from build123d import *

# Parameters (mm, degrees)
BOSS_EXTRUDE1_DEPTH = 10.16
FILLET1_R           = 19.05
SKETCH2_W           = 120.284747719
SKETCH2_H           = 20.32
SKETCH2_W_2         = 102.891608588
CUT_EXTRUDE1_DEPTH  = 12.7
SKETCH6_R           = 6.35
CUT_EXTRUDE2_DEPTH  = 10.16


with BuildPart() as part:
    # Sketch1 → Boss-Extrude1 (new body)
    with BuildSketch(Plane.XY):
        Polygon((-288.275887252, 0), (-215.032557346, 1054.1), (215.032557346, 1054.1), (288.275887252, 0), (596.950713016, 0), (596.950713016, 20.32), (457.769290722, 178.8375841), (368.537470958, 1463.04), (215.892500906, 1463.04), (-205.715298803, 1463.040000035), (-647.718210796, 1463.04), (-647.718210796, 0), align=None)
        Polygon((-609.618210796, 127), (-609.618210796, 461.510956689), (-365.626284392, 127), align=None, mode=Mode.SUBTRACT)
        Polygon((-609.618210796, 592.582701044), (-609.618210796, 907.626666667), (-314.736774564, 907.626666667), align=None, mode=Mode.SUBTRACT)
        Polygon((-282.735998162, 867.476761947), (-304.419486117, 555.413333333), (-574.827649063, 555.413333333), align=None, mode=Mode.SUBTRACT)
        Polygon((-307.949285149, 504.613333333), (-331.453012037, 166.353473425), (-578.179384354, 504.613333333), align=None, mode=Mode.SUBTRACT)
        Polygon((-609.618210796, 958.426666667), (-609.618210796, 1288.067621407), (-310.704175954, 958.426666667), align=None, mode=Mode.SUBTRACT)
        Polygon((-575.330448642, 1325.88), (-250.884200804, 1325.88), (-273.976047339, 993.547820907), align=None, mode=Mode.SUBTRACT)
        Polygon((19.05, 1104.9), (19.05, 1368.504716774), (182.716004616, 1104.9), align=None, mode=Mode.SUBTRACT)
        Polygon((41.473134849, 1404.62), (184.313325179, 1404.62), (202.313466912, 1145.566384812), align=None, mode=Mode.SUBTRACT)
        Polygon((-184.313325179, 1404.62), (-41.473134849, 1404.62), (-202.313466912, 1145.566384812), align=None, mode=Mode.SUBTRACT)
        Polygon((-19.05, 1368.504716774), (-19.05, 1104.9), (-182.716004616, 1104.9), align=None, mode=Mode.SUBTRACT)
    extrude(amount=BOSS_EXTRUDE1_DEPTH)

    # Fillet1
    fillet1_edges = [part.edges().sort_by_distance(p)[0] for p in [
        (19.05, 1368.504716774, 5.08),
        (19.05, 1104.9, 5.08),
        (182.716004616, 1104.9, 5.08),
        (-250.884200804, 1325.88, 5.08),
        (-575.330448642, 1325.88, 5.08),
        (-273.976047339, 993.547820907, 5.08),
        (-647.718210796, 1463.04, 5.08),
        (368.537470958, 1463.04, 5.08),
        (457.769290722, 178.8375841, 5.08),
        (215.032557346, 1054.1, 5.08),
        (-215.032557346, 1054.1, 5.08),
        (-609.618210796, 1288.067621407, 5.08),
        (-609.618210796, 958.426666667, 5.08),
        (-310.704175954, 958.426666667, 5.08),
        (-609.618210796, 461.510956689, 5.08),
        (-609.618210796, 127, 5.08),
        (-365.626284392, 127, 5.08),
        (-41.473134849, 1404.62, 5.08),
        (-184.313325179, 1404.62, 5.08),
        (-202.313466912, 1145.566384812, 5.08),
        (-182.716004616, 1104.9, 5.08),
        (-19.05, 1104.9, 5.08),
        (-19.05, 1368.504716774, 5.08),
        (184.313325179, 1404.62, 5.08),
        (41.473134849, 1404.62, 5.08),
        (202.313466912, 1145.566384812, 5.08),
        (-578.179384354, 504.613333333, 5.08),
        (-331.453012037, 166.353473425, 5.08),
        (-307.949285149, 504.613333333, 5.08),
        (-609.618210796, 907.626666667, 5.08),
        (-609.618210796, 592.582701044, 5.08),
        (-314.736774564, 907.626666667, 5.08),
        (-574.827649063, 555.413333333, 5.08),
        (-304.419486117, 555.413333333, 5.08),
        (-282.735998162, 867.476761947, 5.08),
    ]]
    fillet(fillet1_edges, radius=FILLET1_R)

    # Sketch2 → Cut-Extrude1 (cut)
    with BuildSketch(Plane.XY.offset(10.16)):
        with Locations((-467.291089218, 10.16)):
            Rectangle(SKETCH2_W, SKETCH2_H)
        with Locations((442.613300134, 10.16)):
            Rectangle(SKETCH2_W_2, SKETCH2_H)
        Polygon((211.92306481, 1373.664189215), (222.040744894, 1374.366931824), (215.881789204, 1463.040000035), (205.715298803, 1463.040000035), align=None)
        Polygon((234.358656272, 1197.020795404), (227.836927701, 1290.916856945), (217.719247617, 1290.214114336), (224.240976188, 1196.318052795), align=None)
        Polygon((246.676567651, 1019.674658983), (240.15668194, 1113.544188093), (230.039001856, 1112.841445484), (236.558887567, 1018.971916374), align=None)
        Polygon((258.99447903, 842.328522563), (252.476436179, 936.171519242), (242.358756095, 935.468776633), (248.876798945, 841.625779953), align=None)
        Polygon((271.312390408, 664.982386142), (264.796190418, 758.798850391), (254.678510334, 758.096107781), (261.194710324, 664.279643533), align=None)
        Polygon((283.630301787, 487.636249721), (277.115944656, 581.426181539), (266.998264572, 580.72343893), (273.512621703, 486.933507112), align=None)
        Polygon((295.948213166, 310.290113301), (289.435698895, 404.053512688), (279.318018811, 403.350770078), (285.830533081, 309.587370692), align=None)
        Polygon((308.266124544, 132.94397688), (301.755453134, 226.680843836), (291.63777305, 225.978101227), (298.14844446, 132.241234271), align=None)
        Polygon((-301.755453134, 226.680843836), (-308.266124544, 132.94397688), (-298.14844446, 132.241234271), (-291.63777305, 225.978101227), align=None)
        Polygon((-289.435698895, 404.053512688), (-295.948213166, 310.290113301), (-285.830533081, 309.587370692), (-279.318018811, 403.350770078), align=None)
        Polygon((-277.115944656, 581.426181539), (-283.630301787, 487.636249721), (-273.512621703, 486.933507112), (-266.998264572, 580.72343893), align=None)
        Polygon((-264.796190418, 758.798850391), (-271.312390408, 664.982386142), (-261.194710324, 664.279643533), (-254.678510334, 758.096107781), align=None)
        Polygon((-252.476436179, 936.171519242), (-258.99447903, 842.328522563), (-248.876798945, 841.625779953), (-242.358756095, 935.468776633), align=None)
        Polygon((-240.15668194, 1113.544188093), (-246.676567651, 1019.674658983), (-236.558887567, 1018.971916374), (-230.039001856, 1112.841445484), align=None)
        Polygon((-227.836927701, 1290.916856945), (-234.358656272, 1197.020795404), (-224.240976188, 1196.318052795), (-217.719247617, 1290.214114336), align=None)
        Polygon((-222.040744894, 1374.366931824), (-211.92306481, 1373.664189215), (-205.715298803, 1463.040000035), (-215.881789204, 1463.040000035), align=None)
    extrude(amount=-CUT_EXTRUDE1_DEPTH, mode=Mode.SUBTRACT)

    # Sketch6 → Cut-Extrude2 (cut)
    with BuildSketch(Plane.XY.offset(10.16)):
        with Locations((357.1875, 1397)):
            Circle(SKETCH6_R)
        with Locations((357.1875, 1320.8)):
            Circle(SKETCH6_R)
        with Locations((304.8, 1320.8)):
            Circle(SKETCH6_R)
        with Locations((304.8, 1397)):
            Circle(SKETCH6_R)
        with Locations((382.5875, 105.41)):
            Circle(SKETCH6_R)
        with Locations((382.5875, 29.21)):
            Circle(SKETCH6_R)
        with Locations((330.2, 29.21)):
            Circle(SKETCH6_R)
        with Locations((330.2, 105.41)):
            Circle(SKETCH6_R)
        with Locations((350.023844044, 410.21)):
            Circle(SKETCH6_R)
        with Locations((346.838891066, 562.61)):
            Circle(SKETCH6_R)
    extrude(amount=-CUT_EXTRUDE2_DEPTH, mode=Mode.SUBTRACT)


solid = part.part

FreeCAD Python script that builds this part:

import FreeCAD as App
import Part
import Sketcher
from FreeCAD import Vector
Q = App.Units.Quantity


def edges_at(feature, points):
    """Names of the edges that pass closest to the given points."""
    edges = feature.Shape.Edges
    near = lambda p: min(range(len(edges)), key=lambda i: edges[i].distToShape(Part.Vertex(*p))[0])
    return sorted({f"Edge{near(p) + 1}" for p in points})

doc = App.newDocument("Part")
params = doc.addObject("Spreadsheet::Sheet", "Params")
for row, (alias, value) in enumerate([
    ("sketch1_height", "0.8 in"),
    ("sketch1_height2", "57.6 in"),
    ("pad1_length", "0.4 in"),
    ("fillet_radius", "0.75 in"),
    ("sketch2_height", "0.8 in"),
    ("pocket1_length", "0.5 in"),
    ("sketch3_diameter", "0.5 in"),
    ("pocket2_length", "0.4 in"),
], start=1):
    params.set(f"A{row}", alias)
    params.set(f"B{row}", "=" + value)
    params.setAlias(f"B{row}", alias)

body = doc.addObject("PartDesign::Body", "Body")

# Sketch on XY plane
sketch1 = body.newObject("Sketcher::SketchObject", "Sketch")
sketch1.AttachmentSupport = (doc.getObject("XY_Plane"), [""])
sketch1.MapMode = "FlatFace"
sketch1.addGeometry(Part.LineSegment(Vector(-288.275887, 0, 0), Vector(-215.032557, 1054.1, 0)), False)
sketch1.addGeometry(Part.LineSegment(Vector(-215.032557, 1054.1, 0), Vector(215.032557, 1054.1, 0)), False)
sketch1.addGeometry(Part.LineSegment(Vector(215.032557, 1054.1, 0), Vector(288.275887, 0, 0)), False)
sketch1.addGeometry(Part.LineSegment(Vector(288.275887, 0, 0), Vector(596.950713, 0, 0)), False)
sketch1.addGeometry(Part.LineSegment(Vector(596.950713, 0, 0), Vector(596.950713, 20.32, 0)), False)
sketch1.addGeometry(Part.LineSegment(Vector(596.950713, 20.32, 0), Vector(457.769291, 178.837584, 0)), False)
sketch1.addGeometry(Part.LineSegment(Vector(457.769291, 178.837584, 0), Vector(368.537471, 1463.04, 0)), False)
sketch1.addGeometry(Part.LineSegment(Vector(368.537471, 1463.04, 0), Vector(215.892501, 1463.04, 0)), False)
sketch1.addGeometry(Part.LineSegment(Vector(215.892501, 1463.04, 0), Vector(-205.715299, 1463.04, 0)), False)
sketch1.addGeometry(Part.LineSegment(Vector(-205.715299, 1463.04, 0), Vector(-647.718211, 1463.04, 0)), False)
sketch1.addGeometry(Part.LineSegment(Vector(-647.718211, 1463.04, 0), Vector(-647.718211, 0, 0)), False)
sketch1.addGeometry(Part.LineSegment(Vector(-647.718211, 0, 0), Vector(-288.275887, 0, 0)), False)
sketch1.addGeometry(Part.LineSegment(Vector(-365.626284, 127, 0), Vector(-609.618211, 127, 0)), False)
sketch1.addGeometry(Part.LineSegment(Vector(-609.618211, 127, 0), Vector(-609.618211, 461.510957, 0)), False)
sketch1.addGeometry(Part.LineSegment(Vector(-609.618211, 461.510957, 0), Vector(-365.626284, 127, 0)), False)
sketch1.addGeometry(Part.LineSegment(Vector(-578.179384, 504.613333, 0), Vector(-307.949285, 504.613333, 0)), False)
sketch1.addGeometry(Part.LineSegment(Vector(-307.949285, 504.613333, 0), Vector(-331.453012, 166.353473, 0)), False)
sketch1.addGeometry(Part.LineSegment(Vector(-331.453012, 166.353473, 0), Vector(-578.179384, 504.613333, 0)), False)
sketch1.addGeometry(Part.LineSegment(Vector(-314.736775, 907.626667, 0), Vector(-609.618211, 592.582701, 0)), False)
sketch1.addGeometry(Part.LineSegment(Vector(-609.618211, 592.582701, 0), Vector(-609.618211, 907.626667, 0)), False)
sketch1.addGeometry(Part.LineSegment(Vector(-609.618211, 907.626667, 0), Vector(-314.736775, 907.626667, 0)), False)
sketch1.addGeometry(Part.LineSegment(Vector(-574.827649, 555.413333, 0), Vector(-282.735998, 867.476762, 0)), False)
sketch1.addGeometry(Part.LineSegment(Vector(-282.735998, 867.476762, 0), Vector(-304.419486, 555.413333, 0)), False)
sketch1.addGeometry(Part.LineSegment(Vector(-304.419486, 555.413333, 0), Vector(-574.827649, 555.413333, 0)), False)
sketch1.addGeometry(Part.LineSegment(Vector(-310.704176, 958.426667, 0), Vector(-609.618211, 958.426667, 0)), False)
sketch1.addGeometry(Part.LineSegment(Vector(-609.618211, 958.426667, 0), Vector(-609.618211, 1288.067621, 0)), False)
sketch1.addGeometry(Part.LineSegment(Vector(-609.618211, 1288.067621, 0), Vector(-310.704176, 958.426667, 0)), False)
sketch1.addGeometry(Part.LineSegment(Vector(-273.976047, 993.547821, 0), Vector(-575.330449, 1325.88, 0)), False)
sketch1.addGeometry(Part.LineSegment(Vector(-575.330449, 1325.88, 0), Vector(-250.884201, 1325.88, 0)), False)
sketch1.addGeometry(Part.LineSegment(Vector(-250.884201, 1325.88, 0), Vector(-273.976047, 993.547821, 0)), False)
sketch1.addGeometry(Part.LineSegment(Vector(-182.716005, 1104.9, 0), Vector(-19.05, 1368.504717, 0)), False)
sketch1.addGeometry(Part.LineSegment(Vector(-19.05, 1368.504717, 0), Vector(-19.05, 1104.9, 0)), False)
sketch1.addGeometry(Part.LineSegment(Vector(-19.05, 1104.9, 0), Vector(-182.716005, 1104.9, 0)), False)
sketch1.addGeometry(Part.LineSegment(Vector(-202.313467, 1145.566385, 0), Vector(-184.313325, 1404.62, 0)), False)
sketch1.addGeometry(Part.LineSegment(Vector(-184.313325, 1404.62, 0), Vector(-41.473135, 1404.62, 0)), False)
sketch1.addGeometry(Part.LineSegment(Vector(-41.473135, 1404.62, 0), Vector(-202.313467, 1145.566385, 0)), False)
sketch1.addGeometry(Part.LineSegment(Vector(182.716005, 1104.9, 0), Vector(19.05, 1104.9, 0)), False)
sketch1.addGeometry(Part.LineSegment(Vector(19.05, 1104.9, 0), Vector(19.05, 1368.504717, 0)), False)
sketch1.addGeometry(Part.LineSegment(Vector(19.05, 1368.504717, 0), Vector(182.716005, 1104.9, 0)), False)
sketch1.addGeometry(Part.LineSegment(Vector(202.313467, 1145.566385, 0), Vector(41.473135, 1404.62, 0)), False)
sketch1.addGeometry(Part.LineSegment(Vector(41.473135, 1404.62, 0), Vector(184.313325, 1404.62, 0)), False)
sketch1.addGeometry(Part.LineSegment(Vector(184.313325, 1404.62, 0), Vector(202.313467, 1145.566385, 0)), False)
sketch1.addConstraint(Sketcher.Constraint("Coincident", 0, 2, 1, 1))
sketch1.addConstraint(Sketcher.Constraint("Coincident", 1, 2, 2, 1))
sketch1.addConstraint(Sketcher.Constraint("Coincident", 2, 2, 3, 1))
sketch1.addConstraint(Sketcher.Constraint("Coincident", 3, 2, 4, 1))
sketch1.addConstraint(Sketcher.Constraint("Coincident", 4, 2, 5, 1))
sketch1.addConstraint(Sketcher.Constraint("Coincident", 5, 2, 6, 1))
sketch1.addConstraint(Sketcher.Constraint("Coincident", 6, 2, 7, 1))
sketch1.addConstraint(Sketcher.Constraint("Coincident", 7, 2, 8, 1))
sketch1.addConstraint(Sketcher.Constraint("Coincident", 8, 2, 9, 1))
sketch1.addConstraint(Sketcher.Constraint("Coincident", 9, 2, 10, 1))
sketch1.addConstraint(Sketcher.Constraint("Coincident", 10, 2, 11, 1))
sketch1.addConstraint(Sketcher.Constraint("Coincident", 11, 2, 0, 1))
sketch1.addConstraint(Sketcher.Constraint("Coincident", 12, 2, 13, 1))
sketch1.addConstraint(Sketcher.Constraint("Coincident", 13, 2, 14, 1))
sketch1.addConstraint(Sketcher.Constraint("Coincident", 14, 2, 12, 1))
sketch1.addConstraint(Sketcher.Constraint("Coincident", 15, 2, 16, 1))
sketch1.addConstraint(Sketcher.Constraint("Coincident", 16, 2, 17, 1))
sketch1.addConstraint(Sketcher.Constraint("Coincident", 17, 2, 15, 1))
sketch1.addConstraint(Sketcher.Constraint("Coincident", 18, 2, 19, 1))
sketch1.addConstraint(Sketcher.Constraint("Coincident", 19, 2, 20, 1))
sketch1.addConstraint(Sketcher.Constraint("Coincident", 20, 2, 18, 1))
sketch1.addConstraint(Sketcher.Constraint("Coincident", 21, 2, 22, 1))
sketch1.addConstraint(Sketcher.Constraint("Coincident", 22, 2, 23, 1))
sketch1.addConstraint(Sketcher.Constraint("Coincident", 23, 2, 21, 1))
sketch1.addConstraint(Sketcher.Constraint("Coincident", 24, 2, 25, 1))
sketch1.addConstraint(Sketcher.Constraint("Coincident", 25, 2, 26, 1))
sketch1.addConstraint(Sketcher.Constraint("Coincident", 26, 2, 24, 1))
sketch1.addConstraint(Sketcher.Constraint("Coincident", 27, 2, 28, 1))
sketch1.addConstraint(Sketcher.Constraint("Coincident", 28, 2, 29, 1))
sketch1.addConstraint(Sketcher.Constraint("Coincident", 29, 2, 27, 1))
sketch1.addConstraint(Sketcher.Constraint("Coincident", 30, 2, 31, 1))
sketch1.addConstraint(Sketcher.Constraint("Coincident", 31, 2, 32, 1))
sketch1.addConstraint(Sketcher.Constraint("Coincident", 32, 2, 30, 1))
sketch1.addConstraint(Sketcher.Constraint("Coincident", 33, 2, 34, 1))
sketch1.addConstraint(Sketcher.Constraint("Coincident", 34, 2, 35, 1))
sketch1.addConstraint(Sketcher.Constraint("Coincident", 35, 2, 33, 1))
sketch1.addConstraint(Sketcher.Constraint("Coincident", 36, 2, 37, 1))
sketch1.addConstraint(Sketcher.Constraint("Coincident", 37, 2, 38, 1))
sketch1.addConstraint(Sketcher.Constraint("Coincident", 38, 2, 36, 1))
sketch1.addConstraint(Sketcher.Constraint("Coincident", 39, 2, 40, 1))
sketch1.addConstraint(Sketcher.Constraint("Coincident", 40, 2, 41, 1))
sketch1.addConstraint(Sketcher.Constraint("Coincident", 41, 2, 39, 1))
sketch1.addConstraint(Sketcher.Constraint("Horizontal", 1))
sketch1.addConstraint(Sketcher.Constraint("Horizontal", 3))
sketch1.addConstraint(Sketcher.Constraint("Vertical", 4))
sketch1.addConstraint(Sketcher.Constraint("Horizontal", 7))
sketch1.addConstraint(Sketcher.Constraint("Horizontal", 8))
sketch1.addConstraint(Sketcher.Constraint("Horizontal", 9))
sketch1.addConstraint(Sketcher.Constraint("Vertical", 10))
sketch1.addConstraint(Sketcher.Constraint("Horizontal", 11))
sketch1.addConstraint(Sketcher.Constraint("Horizontal", 12))
sketch1.addConstraint(Sketcher.Constraint("Vertical", 13))
sketch1.addConstraint(Sketcher.Constraint("Horizontal", 15))
sketch1.addConstraint(Sketcher.Constraint("Vertical", 19))
sketch1.addConstraint(Sketcher.Constraint("Horizontal", 20))
sketch1.addConstraint(Sketcher.Constraint("Horizontal", 23))
sketch1.addConstraint(Sketcher.Constraint("Horizontal", 24))
sketch1.addConstraint(Sketcher.Constraint("Vertical", 25))
sketch1.addConstraint(Sketcher.Constraint("Horizontal", 28))
sketch1.addConstraint(Sketcher.Constraint("Vertical", 31))
sketch1.addConstraint(Sketcher.Constraint("Horizontal", 32))
sketch1.addConstraint(Sketcher.Constraint("Horizontal", 34))
sketch1.addConstraint(Sketcher.Constraint("Horizontal", 36))
sketch1.addConstraint(Sketcher.Constraint("Vertical", 37))
sketch1.addConstraint(Sketcher.Constraint("Horizontal", 40))
sketch1.addConstraint(Sketcher.Constraint("Symmetric", 2, 2, 11, 2, -1, 1))
sketch1.addConstraint(Sketcher.Constraint("Symmetric", 31, 2, 36, 2, -2))
sketch1.addConstraint(Sketcher.Constraint("Symmetric", 34, 2, 39, 2, -2))
sketch1.addConstraint(Sketcher.Constraint("Symmetric", 35, 2, 41, 2, -2))
sketch1.addConstraint(Sketcher.Constraint("PointOnObject", 2, 2, -1))
sketch1.addConstraint(Sketcher.Constraint("Parallel", 2, 6))
sketch1.addConstraint(Sketcher.Constraint("Parallel", 0, 16))
sketch1.addConstraint(Sketcher.Constraint("Parallel", 14, 17))
sketch1.addConstraint(Sketcher.Constraint("Parallel", 18, 21))
sketch1.addConstraint(Sketcher.Constraint("Parallel", 16, 22))
sketch1.addConstraint(Sketcher.Constraint("Parallel", 26, 27))
sketch1.addConstraint(Sketcher.Constraint("Parallel", 22, 29))
sketch1.addConstraint(Sketcher.Constraint("Parallel", 29, 33))
sketch1.addConstraint(Sketcher.Constraint("Parallel", 30, 35))
sketch1.addConstraint(Sketcher.Constraint("Parallel", 38, 39))
sketch1.addConstraint(Sketcher.Constraint("Parallel", 6, 41))
sketch1.addConstraint(Sketcher.Constraint("Horizontal", 30, 2, 37, 2))
sketch1.addConstraint(Sketcher.Constraint("Vertical", 13, 2, 18, 2))
sketch1.addConstraint(Sketcher.Constraint("Vertical", 19, 2, 24, 2))
sketch1.addConstraint(Sketcher.Constraint("Equal", 34, 40))
sketch1.addConstraint(Sketcher.Constraint("DistanceY", 4, 1, 4, 2, Q("0.8 in")))
sketch1.addConstraint(Sketcher.Constraint("DistanceY", 10, 2, 10, 1, Q("57.6 in")))
sketch1.addConstraint(Sketcher.Constraint("DistanceY", -1, 1, 12, 2, Q("5 in")))
sketch1.addConstraint(Sketcher.Constraint("DistanceY", 15, 2, 22, 2, Q("2 in")))
sketch1.addConstraint(Sketcher.Constraint("DistanceY", 19, 2, 24, 2, Q("2 in")))
sketch1.addConstraint(Sketcher.Constraint("DistanceY", 0, 2, 31, 2, Q("2 in")))
sketch1.addConstraint(Sketcher.Constraint("DistanceY", -1, 1, 0, 2, Q("41.5 in")))
sketch1.addConstraint(Sketcher.Constraint("DistanceY", -1, 1, 27, 2, Q("52.2 in")))
sketch1.addConstraint(Sketcher.Constraint("DistanceY", -1, 1, 33, 2, Q("55.3 in")))
sketch1.addConstraint(Sketcher.Constraint("DistanceX", 10, 2, 12, 2, Q("1.5 in")))
sketch1.addConstraint(Sketcher.Constraint("DistanceX", 31, 2, 36, 2, Q("1.5 in")))
sketch1.addConstraint(Sketcher.Constraint("DistanceX", 8, 2, 8, 1, 421.6078))
sketch1.addConstraint(Sketcher.Constraint("DistanceX", 15, 1, 15, 2, 270.230099))
sketch1.addConstraint(Sketcher.Constraint("DistanceX", 7, 2, 7, 1, 152.64497))
sketch1.addConstraint(Sketcher.Constraint("DistanceX", 9, 2, 9, 1, 442.002912))
sketch1.addConstraint(Sketcher.Constraint("DistanceX", 34, 1, 34, 2, 142.84019))
sketch1.addConstraint(Sketcher.Constraint("DistanceX", -1, 1, 7, 2, 215.892501))
sketch1.addConstraint(Sketcher.Constraint("DistanceY", -1, 1, 18, 2, 592.582701))
sketch1.addConstraint(Sketcher.Constraint("DistanceX", 21, 2, -1, 1, 282.735998))
sketch1.addConstraint(Sketcher.Constraint("DistanceX", 28, 2, -1, 1, 250.884201))
sketch1.addConstraint(Sketcher.Constraint("DistanceX", 10, 2, 2, 2, 935.994098))
sketch1.addConstraint(Sketcher.Constraint("DistanceX", 10, 2, 5, 2, 1105.487502))
sketch1.addConstraint(Sketcher.Constraint("DistanceX", 11, 2, 3, 2, 885.2266))
sketch1.addConstraint(Sketcher.Constraint("DistanceX", 14, 2, 15, 2, 57.676999))
sketch1.addConstraint(Sketcher.Constraint("DistanceX", 12, 2, 16, 2, 278.165199))
sketch1.addConstraint(Sketcher.Constraint("DistanceX", 15, 2, 22, 2, 3.529799))
sketch1.addConstraint(Sketcher.Constraint("DistanceX", 20, 2, 26, 2, 4.032599))
sketch1.addConstraint(Sketcher.Constraint("Distance", 21, 427.435511))
sketch1.addConstraint(Sketcher.Constraint("Distance", 22, 312.815852))
sketch1.addConstraint(Sketcher.Constraint("Distance", 27, 448.619162))
sketch1.addConstraint(Sketcher.Constraint("Distance", 30, 310.280531))
sketch1.addConstraint(Sketcher.Constraint("DistanceX", 1, 1, 1, 2, 430.065115))
sketch1.addConstraint(Sketcher.Constraint("DistanceX", 20, 1, 20, 2, 294.881436))
sketch1.addConstraint(Sketcher.Constraint("DistanceX", 28, 1, 28, 2, 324.446248))
sketch1.addConstraint(Sketcher.Constraint("DistanceX", 32, 2, 32, 1, 163.666005))
sketch1.addConstraint(Sketcher.Constraint("DistanceY", -1, 1, 21, 2, 867.476762))
sketch1.addConstraint(Sketcher.Constraint("DistanceX", 33, 2, 32, 2, 1.597321))
sketch1.setExpression("Constraints[85]", "Params.sketch1_height")
sketch1.setExpression("Constraints[86]", "Params.sketch1_height2")
pad1 = body.newObject("PartDesign::Pad", "Pad")
pad1.Profile = sketch1
pad1.setExpression("Length", "Params.pad1_length")
doc.recompute()

fillet = body.newObject("PartDesign::Fillet", "Fillet")
fillet.Base = (pad1, edges_at(pad1, [
    (19.05, 1368.505, 5.08),
    (19.05, 1104.9, 5.08),
    (182.716, 1104.9, 5.08),
    (-250.884, 1325.88, 5.08),
    (-575.33, 1325.88, 5.08),
    (-273.976, 993.548, 5.08),
    (-647.718, 1463.04, 5.08),
    (368.537, 1463.04, 5.08),
    (457.769, 178.838, 5.08),
    (215.033, 1054.1, 5.08),
    (-215.033, 1054.1, 5.08),
    (-609.618, 1288.068, 5.08),
    (-609.618, 958.427, 5.08),
    (-310.704, 958.427, 5.08),
    (-609.618, 461.511, 5.08),
    (-609.618, 127, 5.08),
    (-365.626, 127, 5.08),
    (-41.473, 1404.62, 5.08),
    (-184.313, 1404.62, 5.08),
    (-202.313, 1145.566, 5.08),
    (-182.716, 1104.9, 5.08),
    (-19.05, 1104.9, 5.08),
    (-19.05, 1368.505, 5.08),
    (184.313, 1404.62, 5.08),
    (41.473, 1404.62, 5.08),
    (202.313, 1145.566, 5.08),
    (-578.179, 504.613, 5.08),
    (-331.453, 166.353, 5.08),
    (-307.949, 504.613, 5.08),
    (-609.618, 907.627, 5.08),
    (-609.618, 592.583, 5.08),
    (-314.737, 907.627, 5.08),
    (-574.828, 555.413, 5.08),
    (-304.419, 555.413, 5.08),
    (-282.736, 867.477, 5.08),
]))
fillet.setExpression("Radius", "Params.fillet_radius")

# Sketch on XY plane
sketch2 = body.newObject("Sketcher::SketchObject", "Sketch001")
sketch2.AttachmentSupport = (doc.getObject("XY_Plane"), [""])
sketch2.MapMode = "FlatFace"
sketch2.AttachmentOffset = App.Placement(Vector(0, 0, 0.4 * 25.4), App.Rotation())
sketch2.addGeometry(Part.LineSegment(Vector(-527.433463, 20.32, 0), Vector(-527.433463, 0, 0)), False)
sketch2.addGeometry(Part.LineSegment(Vector(-527.433463, 0, 0), Vector(-407.148715, 0, 0)), False)
sketch2.addGeometry(Part.LineSegment(Vector(-407.148715, 0, 0), Vector(-407.148715, 20.32, 0)), False)
sketch2.addGeometry(Part.LineSegment(Vector(-407.148715, 20.32, 0), Vector(-527.433463, 20.32, 0)), False)
sketch2.addGeometry(Part.LineSegment(Vector(391.167496, 20.32, 0), Vector(391.167496, 0, 0)), False)
sketch2.addGeometry(Part.LineSegment(Vector(391.167496, 0, 0), Vector(494.059104, 0, 0)), False)
sketch2.addGeometry(Part.LineSegment(Vector(494.059104, 0, 0), Vector(494.059104, 20.32, 0)), False)
sketch2.addGeometry(Part.LineSegment(Vector(494.059104, 20.32, 0), Vector(391.167496, 20.32, 0)), False)
sketch2.addGeometry(Part.LineSegment(Vector(211.923065, 1373.664189, 0), Vector(222.040745, 1374.366932, 0)), False)
sketch2.addGeometry(Part.LineSegment(Vector(222.040745, 1374.366932, 0), Vector(215.881789, 1463.04, 0)), False)
sketch2.addGeometry(Part.LineSegment(Vector(215.881789, 1463.04, 0), Vector(205.715299, 1463.04, 0)), False)
sketch2.addGeometry(Part.LineSegment(Vector(205.715299, 1463.04, 0), Vector(211.923065, 1373.664189, 0)), False)
sketch2.addGeometry(Part.LineSegment(Vector(234.358656, 1197.020795, 0), Vector(227.836928, 1290.916857, 0)), False)
sketch2.addGeometry(Part.LineSegment(Vector(227.836928, 1290.916857, 0), Vector(217.719248, 1290.214114, 0)), False)
sketch2.addGeometry(Part.LineSegment(Vector(217.719248, 1290.214114, 0), Vector(224.240976, 1196.318053, 0)), False)
sketch2.addGeometry(Part.LineSegment(Vector(224.240976, 1196.318053, 0), Vector(234.358656, 1197.020795, 0)), False)
sketch2.addGeometry(Part.LineSegment(Vector(246.676568, 1019.674659, 0), Vector(240.156682, 1113.544188, 0)), False)
sketch2.addGeometry(Part.LineSegment(Vector(240.156682, 1113.544188, 0), Vector(230.039002, 1112.841445, 0)), False)
sketch2.addGeometry(Part.LineSegment(Vector(230.039002, 1112.841445, 0), Vector(236.558888, 1018.971916, 0)), False)
sketch2.addGeometry(Part.LineSegment(Vector(236.558888, 1018.971916, 0), Vector(246.676568, 1019.674659, 0)), False)
sketch2.addGeometry(Part.LineSegment(Vector(258.994479, 842.328523, 0), Vector(252.476436, 936.171519, 0)), False)
sketch2.addGeometry(Part.LineSegment(Vector(252.476436, 936.171519, 0), Vector(242.358756, 935.468777, 0)), False)
sketch2.addGeometry(Part.LineSegment(Vector(242.358756, 935.468777, 0), Vector(248.876799, 841.62578, 0)), False)
sketch2.addGeometry(Part.LineSegment(Vector(248.876799, 841.62578, 0), Vector(258.994479, 842.328523, 0)), False)
sketch2.addGeometry(Part.LineSegment(Vector(271.31239, 664.982386, 0), Vector(264.79619, 758.79885, 0)), False)
sketch2.addGeometry(Part.LineSegment(Vector(264.79619, 758.79885, 0), Vector(254.67851, 758.096108, 0)), False)
sketch2.addGeometry(Part.LineSegment(Vector(254.67851, 758.096108, 0), Vector(261.19471, 664.279644, 0)), False)
sketch2.addGeometry(Part.LineSegment(Vector(261.19471, 664.279644, 0), Vector(271.31239, 664.982386, 0)), False)
sketch2.addGeometry(Part.LineSegment(Vector(283.630302, 487.63625, 0), Vector(277.115945, 581.426182, 0)), False)
sketch2.addGeometry(Part.LineSegment(Vector(277.115945, 581.426182, 0), Vector(266.998265, 580.723439, 0)), False)
sketch2.addGeometry(Part.LineSegment(Vector(266.998265, 580.723439, 0), Vector(273.512622, 486.933507, 0)), False)
sketch2.addGeometry(Part.LineSegment(Vector(273.512622, 486.933507, 0), Vector(283.630302, 487.63625, 0)), False)
sketch2.addGeometry(Part.LineSegment(Vector(295.948213, 310.290113, 0), Vector(289.435699, 404.053513, 0)), False)
sketch2.addGeometry(Part.LineSegment(Vector(289.435699, 404.053513, 0), Vector(279.318019, 403.35077, 0)), False)
sketch2.addGeometry(Part.LineSegment(Vector(279.318019, 403.35077, 0), Vector(285.830533, 309.587371, 0)), False)
sketch2.addGeometry(Part.LineSegment(Vector(285.830533, 309.587371, 0), Vector(295.948213, 310.290113, 0)), False)
sketch2.addGeometry(Part.LineSegment(Vector(308.266125, 132.943977, 0), Vector(301.755453, 226.680844, 0)), False)
sketch2.addGeometry(Part.LineSegment(Vector(301.755453, 226.680844, 0), Vector(291.637773, 225.978101, 0)), False)
sketch2.addGeometry(Part.LineSegment(Vector(291.637773, 225.978101, 0), Vector(298.148444, 132.241234, 0)), False)
sketch2.addGeometry(Part.LineSegment(Vector(298.148444, 132.241234, 0), Vector(308.266125, 132.943977, 0)), False)
sketch2.addGeometry(Part.LineSegment(Vector(-301.755453, 226.680844, 0), Vector(-308.266125, 132.943977, 0)), False)
sketch2.addGeometry(Part.LineSegment(Vector(-308.266125, 132.943977, 0), Vector(-298.148444, 132.241234, 0)), False)
sketch2.addGeometry(Part.LineSegment(Vector(-298.148444, 132.241234, 0), Vector(-291.637773, 225.978101, 0)), False)
sketch2.addGeometry(Part.LineSegment(Vector(-291.637773, 225.978101, 0), Vector(-301.755453, 226.680844, 0)), False)
sketch2.addGeometry(Part.LineSegment(Vector(-289.435699, 404.053513, 0), Vector(-295.948213, 310.290113, 0)), False)
sketch2.addGeometry(Part.LineSegment(Vector(-295.948213, 310.290113, 0), Vector(-285.830533, 309.587371, 0)), False)
sketch2.addGeometry(Part.LineSegment(Vector(-285.830533, 309.587371, 0), Vector(-279.318019, 403.35077, 0)), False)
sketch2.addGeometry(Part.LineSegment(Vector(-279.318019, 403.35077, 0), Vector(-289.435699, 404.053513, 0)), False)
sketch2.addGeometry(Part.LineSegment(Vector(-277.115945, 581.426182, 0), Vector(-283.630302, 487.63625, 0)), False)
sketch2.addGeometry(Part.LineSegment(Vector(-283.630302, 487.63625, 0), Vector(-273.512622, 486.933507, 0)), False)
sketch2.addGeometry(Part.LineSegment(Vector(-273.512622, 486.933507, 0), Vector(-266.998265, 580.723439, 0)), False)
sketch2.addGeometry(Part.LineSegment(Vector(-266.998265, 580.723439, 0), Vector(-277.115945, 581.426182, 0)), False)
sketch2.addGeometry(Part.LineSegment(Vector(-264.79619, 758.79885, 0), Vector(-271.31239, 664.982386, 0)), False)
sketch2.addGeometry(Part.LineSegment(Vector(-271.31239, 664.982386, 0), Vector(-261.19471, 664.279644, 0)), False)
sketch2.addGeometry(Part.LineSegment(Vector(-261.19471, 664.279644, 0), Vector(-254.67851, 758.096108, 0)), False)
sketch2.addGeometry(Part.LineSegment(Vector(-254.67851, 758.096108, 0), Vector(-264.79619, 758.79885, 0)), False)
sketch2.addGeometry(Part.LineSegment(Vector(-252.476436, 936.171519, 0), Vector(-258.994479, 842.328523, 0)), False)
sketch2.addGeometry(Part.LineSegment(Vector(-258.994479, 842.328523, 0), Vector(-248.876799, 841.62578, 0)), False)
sketch2.addGeometry(Part.LineSegment(Vector(-248.876799, 841.62578, 0), Vector(-242.358756, 935.468777, 0)), False)
sketch2.addGeometry(Part.LineSegment(Vector(-242.358756, 935.468777, 0), Vector(-252.476436, 936.171519, 0)), False)
sketch2.addGeometry(Part.LineSegment(Vector(-240.156682, 1113.544188, 0), Vector(-246.676568, 1019.674659, 0)), False)
sketch2.addGeometry(Part.LineSegment(Vector(-246.676568, 1019.674659, 0), Vector(-236.558888, 1018.971916, 0)), False)
sketch2.addGeometry(Part.LineSegment(Vector(-236.558888, 1018.971916, 0), Vector(-230.039002, 1112.841445, 0)), False)
sketch2.addGeometry(Part.LineSegment(Vector(-230.039002, 1112.841445, 0), Vector(-240.156682, 1113.544188, 0)), False)
sketch2.addGeometry(Part.LineSegment(Vector(-227.836928, 1290.916857, 0), Vector(-234.358656, 1197.020795, 0)), False)
sketch2.addGeometry(Part.LineSegment(Vector(-234.358656, 1197.020795, 0), Vector(-224.240976, 1196.318053, 0)), False)
sketch2.addGeometry(Part.LineSegment(Vector(-224.240976, 1196.318053, 0), Vector(-217.719248, 1290.214114, 0)), False)
sketch2.addGeometry(Part.LineSegment(Vector(-217.719248, 1290.214114, 0), Vector(-227.836928, 1290.916857, 0)), False)
sketch2.addGeometry(Part.LineSegment(Vector(-222.040745, 1374.366932, 0), Vector(-211.923065, 1373.664189, 0)), False)
sketch2.addGeometry(Part.LineSegment(Vector(-211.923065, 1373.664189, 0), Vector(-205.715299, 1463.04, 0)), False)
sketch2.addGeometry(Part.LineSegment(Vector(-205.715299, 1463.04, 0), Vector(-215.881789, 1463.04, 0)), False)
sketch2.addGeometry(Part.LineSegment(Vector(-215.881789, 1463.04, 0), Vector(-222.040745, 1374.366932, 0)), False)
sketch2.addConstraint(Sketcher.Constraint("Coincident", 0, 2, 1, 1))
sketch2.addConstraint(Sketcher.Constraint("Coincident", 1, 2, 2, 1))
sketch2.addConstraint(Sketcher.Constraint("Coincident", 2, 2, 3, 1))
sketch2.addConstraint(Sketcher.Constraint("Coincident", 3, 2, 0, 1))
sketch2.addConstraint(Sketcher.Constraint("Coincident", 4, 2, 5, 1))
sketch2.addConstraint(Sketcher.Constraint("Coincident", 5, 2, 6, 1))
sketch2.addConstraint(Sketcher.Constraint("Coincident", 6, 2, 7, 1))
sketch2.addConstraint(Sketcher.Constraint("Coincident", 7, 2, 4, 1))
sketch2.addConstraint(Sketcher.Constraint("Coincident", 8, 2, 9, 1))
sketch2.addConstraint(Sketcher.Constraint("Coincident", 9, 2, 10, 1))
sketch2.addConstraint(Sketcher.Constraint("Coincident", 10, 2, 11, 1))
sketch2.addConstraint(Sketcher.Constraint("Coincident", 11, 2, 8, 1))
sketch2.addConstraint(Sketcher.Constraint("Coincident", 12, 2, 13, 1))
sketch2.addConstraint(Sketcher.Constraint("Coincident", 13, 2, 14, 1))
sketch2.addConstraint(Sketcher.Constraint("Coincident", 14, 2, 15, 1))
sketch2.addConstraint(Sketcher.Constraint("Coincident", 15, 2, 12, 1))
sketch2.addConstraint(Sketcher.Constraint("Coincident", 16, 2, 17, 1))
sketch2.addConstraint(Sketcher.Constraint("Coincident", 17, 2, 18, 1))
sketch2.addConstraint(Sketcher.Constraint("Coincident", 18, 2, 19, 1))
sketch2.addConstraint(Sketcher.Constraint("Coincident", 19, 2, 16, 1))
sketch2.addConstraint(Sketcher.Constraint("Coincident", 20, 2, 21, 1))
sketch2.addConstraint(Sketcher.Constraint("Coincident", 21, 2, 22, 1))
sketch2.addConstraint(Sketcher.Constraint("Coincident", 22, 2, 23, 1))
sketch2.addConstraint(Sketcher.Constraint("Coincident", 23, 2, 20, 1))
sketch2.addConstraint(Sketcher.Constraint("Coincident", 24, 2, 25, 1))
sketch2.addConstraint(Sketcher.Constraint("Coincident", 25, 2, 26, 1))
sketch2.addConstraint(Sketcher.Constraint("Coincident", 26, 2, 27, 1))
sketch2.addConstraint(Sketcher.Constraint("Coincident", 27, 2, 24, 1))
sketch2.addConstraint(Sketcher.Constraint("Coincident", 28, 2, 29, 1))
sketch2.addConstraint(Sketcher.Constraint("Coincident", 29, 2, 30, 1))
sketch2.addConstraint(Sketcher.Constraint("Coincident", 30, 2, 31, 1))
sketch2.addConstraint(Sketcher.Constraint("Coincident", 31, 2, 28, 1))
sketch2.addConstraint(Sketcher.Constraint("Coincident", 32, 2, 33, 1))
sketch2.addConstraint(Sketcher.Constraint("Coincident", 33, 2, 34, 1))
sketch2.addConstraint(Sketcher.Constraint("Coincident", 34, 2, 35, 1))
sketch2.addConstraint(Sketcher.Constraint("Coincident", 35, 2, 32, 1))
sketch2.addConstraint(Sketcher.Constraint("Coincident", 36, 2, 37, 1))
sketch2.addConstraint(Sketcher.Constraint("Coincident", 37, 2, 38, 1))
sketch2.addConstraint(Sketcher.Constraint("Coincident", 38, 2, 39, 1))
sketch2.addConstraint(Sketcher.Constraint("Coincident", 39, 2, 36, 1))
sketch2.addConstraint(Sketcher.Constraint("Coincident", 40, 2, 41, 1))
sketch2.addConstraint(Sketcher.Constraint("Coincident", 41, 2, 42, 1))
sketch2.addConstraint(Sketcher.Constraint("Coincident", 42, 2, 43, 1))
sketch2.addConstraint(Sketcher.Constraint("Coincident", 43, 2, 40, 1))
sketch2.addConstraint(Sketcher.Constraint("Coincident", 44, 2, 45, 1))
sketch2.addConstraint(Sketcher.Constraint("Coincident", 45, 2, 46, 1))
sketch2.addConstraint(Sketcher.Constraint("Coincident", 46, 2, 47, 1))
sketch2.addConstraint(Sketcher.Constraint("Coincident", 47, 2, 44, 1))
sketch2.addConstraint(Sketcher.Constraint("Coincident", 48, 2, 49, 1))
sketch2.addConstraint(Sketcher.Constraint("Coincident", 49, 2, 50, 1))
sketch2.addConstraint(Sketcher.Constraint("Coincident", 50, 2, 51, 1))
sketch2.addConstraint(Sketcher.Constraint("Coincident", 51, 2, 48, 1))
sketch2.addConstraint(Sketcher.Constraint("Coincident", 52, 2, 53, 1))
sketch2.addConstraint(Sketcher.Constraint("Coincident", 53, 2, 54, 1))
sketch2.addConstraint(Sketcher.Constraint("Coincident", 54, 2, 55, 1))
sketch2.addConstraint(Sketcher.Constraint("Coincident", 55, 2, 52, 1))
sketch2.addConstraint(Sketcher.Constraint("Coincident", 56, 2, 57, 1))
sketch2.addConstraint(Sketcher.Constraint("Coincident", 57, 2, 58, 1))
sketch2.addConstraint(Sketcher.Constraint("Coincident", 58, 2, 59, 1))
sketch2.addConstraint(Sketcher.Constraint("Coincident", 59, 2, 56, 1))
sketch2.addConstraint(Sketcher.Constraint("Coincident", 60, 2, 61, 1))
sketch2.addConstraint(Sketcher.Constraint("Coincident", 61, 2, 62, 1))
sketch2.addConstraint(Sketcher.Constraint("Coincident", 62, 2, 63, 1))
sketch2.addConstraint(Sketcher.Constraint("Coincident", 63, 2, 60, 1))
sketch2.addConstraint(Sketcher.Constraint("Coincident", 64, 2, 65, 1))
sketch2.addConstraint(Sketcher.Constraint("Coincident", 65, 2, 66, 1))
sketch2.addConstraint(Sketcher.Constraint("Coincident", 66, 2, 67, 1))
sketch2.addConstraint(Sketcher.Constraint("Coincident", 67, 2, 64, 1))
sketch2.addConstraint(Sketcher.Constraint("Coincident", 68, 2, 69, 1))
sketch2.addConstraint(Sketcher.Constraint("Coincident", 69, 2, 70, 1))
sketch2.addConstraint(Sketcher.Constraint("Coincident", 70, 2, 71, 1))
sketch2.addConstraint(Sketcher.Constraint("Coincident", 71, 2, 68, 1))
sketch2.addConstraint(Sketcher.Constraint("Vertical", 0))
sketch2.addConstraint(Sketcher.Constraint("Horizontal", 1))
sketch2.addConstraint(Sketcher.Constraint("Vertical", 2))
sketch2.addConstraint(Sketcher.Constraint("Horizontal", 3))
sketch2.addConstraint(Sketcher.Constraint("Vertical", 4))
sketch2.addConstraint(Sketcher.Constraint("Horizontal", 5))
sketch2.addConstraint(Sketcher.Constraint("Vertical", 6))
sketch2.addConstraint(Sketcher.Constraint("Horizontal", 7))
sketch2.addConstraint(Sketcher.Constraint("Horizontal", 10))
sketch2.addConstraint(Sketcher.Constraint("Horizontal", 70))
sketch2.addConstraint(Sketcher.Constraint("Symmetric", 39, 2, 40, 2, -2))
sketch2.addConstraint(Sketcher.Constraint("Symmetric", 38, 2, 41, 2, -2))
sketch2.addConstraint(Sketcher.Constraint("Symmetric", 37, 2, 42, 2, -2))
sketch2.addConstraint(Sketcher.Constraint("Symmetric", 36, 2, 43, 2, -2))
sketch2.addConstraint(Sketcher.Constraint("Symmetric", 35, 2, 44, 2, -2))
sketch2.addConstraint(Sketcher.Constraint("Symmetric", 34, 2, 45, 2, -2))
sketch2.addConstraint(Sketcher.Constraint("Symmetric", 33, 2, 46, 2, -2))
sketch2.addConstraint(Sketcher.Constraint("Symmetric", 32, 2, 47, 2, -2))
sketch2.addConstraint(Sketcher.Constraint("Symmetric", 31, 2, 48, 2, -2))
sketch2.addConstraint(Sketcher.Constraint("Symmetric", 30, 2, 49, 2, -2))
sketch2.addConstraint(Sketcher.Constraint("Symmetric", 29, 2, 50, 2, -2))
sketch2.addConstraint(Sketcher.Constraint("Symmetric", 28, 2, 51, 2, -2))
sketch2.addConstraint(Sketcher.Constraint("Symmetric", 27, 2, 52, 2, -2))
sketch2.addConstraint(Sketcher.Constraint("Symmetric", 26, 2, 53, 2, -2))
sketch2.addConstraint(Sketcher.Constraint("Symmetric", 25, 2, 54, 2, -2))
sketch2.addConstraint(Sketcher.Constraint("Symmetric", 24, 2, 55, 2, -2))
sketch2.addConstraint(Sketcher.Constraint("Symmetric", 23, 2, 56, 2, -2))
sketch2.addConstraint(Sketcher.Constraint("Symmetric", 22, 2, 57, 2, -2))
sketch2.addConstraint(Sketcher.Constraint("Symmetric", 21, 2, 58, 2, -2))
sketch2.addConstraint(Sketcher.Constraint("Symmetric", 20, 2, 59, 2, -2))
sketch2.addConstraint(Sketcher.Constraint("Symmetric", 19, 2, 60, 2, -2))
sketch2.addConstraint(Sketcher.Constraint("Symmetric", 18, 2, 61, 2, -2))
sketch2.addConstraint(Sketcher.Constraint("Symmetric", 17, 2, 62, 2, -2))
sketch2.addConstraint(Sketcher.Constraint("Symmetric", 16, 2, 63, 2, -2))
sketch2.addConstraint(Sketcher.Constraint("Symmetric", 15, 2, 64, 2, -2))
sketch2.addConstraint(Sketcher.Constraint("Symmetric", 14, 2, 65, 2, -2))
sketch2.addConstraint(Sketcher.Constraint("Symmetric", 13, 2, 66, 2, -2))
sketch2.addConstraint(Sketcher.Constraint("Symmetric", 12, 2, 67, 2, -2))
sketch2.addConstraint(Sketcher.Constraint("Symmetric", 11, 2, 68, 2, -2))
sketch2.addConstraint(Sketcher.Constraint("Symmetric", 10, 2, 69, 2, -2))
sketch2.addConstraint(Sketcher.Constraint("Symmetric", 8, 2, 71, 2, -2))
sketch2.addConstraint(Sketcher.Constraint("PointOnObject", 0, 2, -1))
sketch2.addConstraint(Sketcher.Constraint("PointOnObject", 4, 2, -1))
sketch2.addConstraint(Sketcher.Constraint("Perpendicular", 8, 9))
sketch2.addConstraint(Sketcher.Constraint("Parallel", 9, 11))
sketch2.addConstraint(Sketcher.Constraint("Parallel", 11, 12))
sketch2.addConstraint(Sketcher.Constraint("Perpendicular", 12, 13))
sketch2.addConstraint(Sketcher.Constraint("Perpendicular", 13, 14))
sketch2.addConstraint(Sketcher.Constraint("Perpendicular", 14, 15))
sketch2.addConstraint(Sketcher.Constraint("Perpendicular", 15, 16))
sketch2.addConstraint(Sketcher.Constraint("Perpendicular", 16, 17))
sketch2.addConstraint(Sketcher.Constraint("Perpendicular", 17, 18))
sketch2.addConstraint(Sketcher.Constraint("Perpendicular", 18, 19))
sketch2.addConstraint(Sketcher.Constraint("Perpendicular", 19, 20))
sketch2.addConstraint(Sketcher.Constraint("Perpendicular", 20, 21))
sketch2.addConstraint(Sketcher.Constraint("Perpendicular", 21, 22))
sketch2.addConstraint(Sketcher.Constraint("Perpendicular", 22, 23))
sketch2.addConstraint(Sketcher.Constraint("Perpendicular", 23, 24))
sketch2.addConstraint(Sketcher.Constraint("Perpendicular", 24, 25))
sketch2.addConstraint(Sketcher.Constraint("Perpendicular", 25, 26))
sketch2.addConstraint(Sketcher.Constraint("Perpendicular", 26, 27))
sketch2.addConstraint(Sketcher.Constraint("Perpendicular", 27, 28))
sketch2.addConstraint(Sketcher.Constraint("Perpendicular", 28, 29))
sketch2.addConstraint(Sketcher.Constraint("Perpendicular", 29, 30))
sketch2.addConstraint(Sketcher.Constraint("Perpendicular", 30, 31))
sketch2.addConstraint(Sketcher.Constraint("Perpendicular", 31, 32))
sketch2.addConstraint(Sketcher.Constraint("Perpendicular", 32, 33))
sketch2.addConstraint(Sketcher.Constraint("Perpendicular", 33, 34))
sketch2.addConstraint(Sketcher.Constraint("Perpendicular", 34, 35))
sketch2.addConstraint(Sketcher.Constraint("Perpendicular", 35, 36))
sketch2.addConstraint(Sketcher.Constraint("Perpendicular", 36, 37))
sketch2.addConstraint(Sketcher.Constraint("Perpendicular", 37, 38))
sketch2.addConstraint(Sketcher.Constraint("Perpendicular", 38, 39))
sketch2.addConstraint(Sketcher.Constraint("Parallel", 69, 71))
sketch2.addConstraint(Sketcher.Constraint("Horizontal", 3, 2, 6, 2))
sketch2.addConstraint(Sketcher.Constraint("Equal", 8, 13))
sketch2.addConstraint(Sketcher.Constraint("Equal", 15, 17))
sketch2.addConstraint(Sketcher.Constraint("Equal", 19, 21))
sketch2.addConstraint(Sketcher.Constraint("Equal", 23, 25))
sketch2.addConstraint(Sketcher.Constraint("Equal", 27, 29))
sketch2.addConstraint(Sketcher.Constraint("Equal", 31, 33))
sketch2.addConstraint(Sketcher.Constraint("Equal", 35, 37))
sketch2.addConstraint(Sketcher.Constraint("DistanceY", 0, 2, 0, 1, Q("0.8 in")))
sketch2.addConstraint(Sketcher.Constraint("DistanceY", -1, 1, 9, 2, Q("57.6 in")))
sketch2.addConstraint(Sketcher.Constraint("Distance", 9, 88.886702))
sketch2.addConstraint(Sketcher.Constraint("Distance", 36, 93.9627))
sketch2.addConstraint(Sketcher.Constraint("DistanceX", 5, 1, 5, 2, 102.891609))
sketch2.addConstraint(Sketcher.Constraint("DistanceX", 10, 2, 10, 1, 10.16649))
sketch2.addConstraint(Sketcher.Constraint("DistanceX", -1, 1, 10, 2, 205.715299))
sketch2.addConstraint(Sketcher.Constraint("DistanceX", -1, 1, 17, 2, 230.039002))
sketch2.addConstraint(Sketcher.Constraint("DistanceX", -1, 1, 22, 2, 248.876799))
sketch2.addConstraint(Sketcher.Constraint("DistanceX", -1, 1, 31, 2, 283.630302))
sketch2.addConstraint(Sketcher.Constraint("DistanceX", -1, 1, 32, 2, 289.435699))
sketch2.addConstraint(Sketcher.Constraint("DistanceY", -1, 1, 37, 2, 225.978101))
sketch2.addConstraint(Sketcher.Constraint("Distance", 12, 94.122279))
sketch2.addConstraint(Sketcher.Constraint("Distance", 24, 94.042489))
sketch2.addConstraint(Sketcher.Constraint("DistanceX", 1, 1, 1, 2, 120.284748))
sketch2.addConstraint(Sketcher.Constraint("DistanceY", -1, 1, 8, 2, 1374.366932))
sketch2.addConstraint(Sketcher.Constraint("DistanceY", -1, 1, 16, 2, 1113.544188))
sketch2.addConstraint(Sketcher.Constraint("DistanceY", -1, 1, 19, 2, 1019.674659))
sketch2.addConstraint(Sketcher.Constraint("DistanceY", -1, 1, 20, 2, 936.171519))
sketch2.addConstraint(Sketcher.Constraint("DistanceY", -1, 1, 22, 2, 841.62578))
sketch2.addConstraint(Sketcher.Constraint("DistanceX", -1, 1, 24, 2, 264.79619))
sketch2.addConstraint(Sketcher.Constraint("DistanceY", -1, 1, 24, 2, 758.79885))
sketch2.addConstraint(Sketcher.Constraint("DistanceY", -1, 1, 28, 2, 581.426182))
sketch2.addConstraint(Sketcher.Constraint("DistanceY", -1, 1, 31, 2, 487.63625))
sketch2.addConstraint(Sketcher.Constraint("DistanceY", -1, 1, 33, 2, 403.35077))
sketch2.addConstraint(Sketcher.Constraint("DistanceY", -1, 1, 34, 2, 309.587371))
sketch2.addConstraint(Sketcher.Constraint("DistanceX", 0, 2, -1, 1, 527.433463))
sketch2.addConstraint(Sketcher.Constraint("DistanceX", -1, 1, 4, 2, 391.167496))
sketch2.addConstraint(Sketcher.Constraint("DistanceX", -1, 1, 12, 2, 227.836928))
sketch2.addConstraint(Sketcher.Constraint("DistanceY", -1, 1, 12, 2, 1290.916857))
sketch2.addConstraint(Sketcher.Constraint("DistanceX", -1, 1, 36, 2, 301.755453))
sketch2.setExpression("Constraints[154]", "Params.sketch2_height")
pocket1 = body.newObject("PartDesign::Pocket", "Pocket")
pocket1.Profile = sketch2
pocket1.setExpression("Length", "Params.pocket1_length")

# Sketch on XY plane
sketch3 = body.newObject("Sketcher::SketchObject", "Sketch002")
sketch3.AttachmentSupport = (doc.getObject("XY_Plane"), [""])
sketch3.MapMode = "FlatFace"
sketch3.AttachmentOffset = App.Placement(Vector(0, 0, 0.4 * 25.4), App.Rotation())
sketch3.addGeometry(Part.Circle(Vector(357.1875, 1397, 0), Vector(0, 0, 1), 6.35), False)
sketch3.addGeometry(Part.Circle(Vector(357.1875, 1320.8, 0), Vector(0, 0, 1), 6.35), False)
sketch3.addGeometry(Part.Circle(Vector(304.8, 1320.8, 0), Vector(0, 0, 1), 6.35), False)
sketch3.addGeometry(Part.Circle(Vector(304.8, 1397, 0), Vector(0, 0, 1), 6.35), False)
sketch3.addGeometry(Part.Circle(Vector(382.5875, 105.41, 0), Vector(0, 0, 1), 6.35), False)
sketch3.addGeometry(Part.Circle(Vector(382.5875, 29.21, 0), Vector(0, 0, 1), 6.35), False)
sketch3.addGeometry(Part.Circle(Vector(330.2, 29.21, 0), Vector(0, 0, 1), 6.35), False)
sketch3.addGeometry(Part.Circle(Vector(330.2, 105.41, 0), Vector(0, 0, 1), 6.35), False)
sketch3.addGeometry(Part.Circle(Vector(350.023844, 410.21, 0), Vector(0, 0, 1), 6.35), False)
sketch3.addGeometry(Part.Circle(Vector(346.838891, 562.61, 0), Vector(0, 0, 1), 6.35), False)
sketch3.addConstraint(Sketcher.Constraint("Equal", 0, 1))
sketch3.addConstraint(Sketcher.Constraint("Equal", 1, 2))
sketch3.addConstraint(Sketcher.Constraint("Equal", 2, 3))
sketch3.addConstraint(Sketcher.Constraint("Equal", 3, 4))
sketch3.addConstraint(Sketcher.Constraint("Equal", 4, 5))
sketch3.addConstraint(Sketcher.Constraint("Equal", 5, 6))
sketch3.addConstraint(Sketcher.Constraint("Equal", 6, 7))
sketch3.addConstraint(Sketcher.Constraint("Equal", 7, 8))
sketch3.addConstraint(Sketcher.Constraint("Equal", 8, 9))
sketch3.addConstraint(Sketcher.Constraint("Horizontal", 1, 3, 2, 3))
sketch3.addConstraint(Sketcher.Constraint("Horizontal", 0, 3, 3, 3))
sketch3.addConstraint(Sketcher.Constraint("Horizontal", 5, 3, 6, 3))
sketch3.addConstraint(Sketcher.Constraint("Horizontal", 4, 3, 7, 3))
sketch3.addConstraint(Sketcher.Constraint("Vertical", 0, 3, 1, 3))
sketch3.addConstraint(Sketcher.Constraint("Vertical", 2, 3, 3, 3))
sketch3.addConstraint(Sketcher.Constraint("Vertical", 4, 3, 5, 3))
sketch3.addConstraint(Sketcher.Constraint("Vertical", 6, 3, 7, 3))
sketch3.addConstraint(Sketcher.Constraint("Diameter", 0, Q("0.5 in")))
sketch3.addConstraint(Sketcher.Constraint("DistanceY", -1, 1, 0, 3, Q("55 in")))
sketch3.addConstraint(Sketcher.Constraint("DistanceY", -1, 1, 1, 3, Q("52 in")))
sketch3.addConstraint(Sketcher.Constraint("DistanceX", -1, 1, 2, 3, Q("12 in")))
sketch3.addConstraint(Sketcher.Constraint("DistanceX", -1, 1, 6, 3, Q("13 in")))
sketch3.addConstraint(Sketcher.Constraint("DistanceX", 1, 3, 4, 3, Q("1 in")))
sketch3.addConstraint(Sketcher.Constraint("DistanceY", 5, 3, 4, 3, Q("3 in")))
sketch3.addConstraint(Sketcher.Constraint("DistanceY", 7, 3, 8, 3, Q("12 in")))
sketch3.addConstraint(Sketcher.Constraint("DistanceY", 8, 3, 9, 3, Q("6 in")))
sketch3.addConstraint(Sketcher.Constraint("DistanceY", -1, 1, 4, 3, Q("4.15 in")))
sketch3.addConstraint(Sketcher.Constraint("DistanceX", -1, 1, 0, 3, Q("14.0625 in")))
sketch3.addConstraint(Sketcher.Constraint("DistanceX", -1, 1, 9, 3, 346.838891))
sketch3.addConstraint(Sketcher.Constraint("DistanceX", -1, 1, 8, 3, 350.023844))
sketch3.setExpression("Constraints[17]", "Params.sketch3_diameter")
pocket2 = body.newObject("PartDesign::Pocket", "Pocket001")
pocket2.Profile = sketch3
pocket2.setExpression("Length", "Params.pocket2_length")

doc.recompute()
